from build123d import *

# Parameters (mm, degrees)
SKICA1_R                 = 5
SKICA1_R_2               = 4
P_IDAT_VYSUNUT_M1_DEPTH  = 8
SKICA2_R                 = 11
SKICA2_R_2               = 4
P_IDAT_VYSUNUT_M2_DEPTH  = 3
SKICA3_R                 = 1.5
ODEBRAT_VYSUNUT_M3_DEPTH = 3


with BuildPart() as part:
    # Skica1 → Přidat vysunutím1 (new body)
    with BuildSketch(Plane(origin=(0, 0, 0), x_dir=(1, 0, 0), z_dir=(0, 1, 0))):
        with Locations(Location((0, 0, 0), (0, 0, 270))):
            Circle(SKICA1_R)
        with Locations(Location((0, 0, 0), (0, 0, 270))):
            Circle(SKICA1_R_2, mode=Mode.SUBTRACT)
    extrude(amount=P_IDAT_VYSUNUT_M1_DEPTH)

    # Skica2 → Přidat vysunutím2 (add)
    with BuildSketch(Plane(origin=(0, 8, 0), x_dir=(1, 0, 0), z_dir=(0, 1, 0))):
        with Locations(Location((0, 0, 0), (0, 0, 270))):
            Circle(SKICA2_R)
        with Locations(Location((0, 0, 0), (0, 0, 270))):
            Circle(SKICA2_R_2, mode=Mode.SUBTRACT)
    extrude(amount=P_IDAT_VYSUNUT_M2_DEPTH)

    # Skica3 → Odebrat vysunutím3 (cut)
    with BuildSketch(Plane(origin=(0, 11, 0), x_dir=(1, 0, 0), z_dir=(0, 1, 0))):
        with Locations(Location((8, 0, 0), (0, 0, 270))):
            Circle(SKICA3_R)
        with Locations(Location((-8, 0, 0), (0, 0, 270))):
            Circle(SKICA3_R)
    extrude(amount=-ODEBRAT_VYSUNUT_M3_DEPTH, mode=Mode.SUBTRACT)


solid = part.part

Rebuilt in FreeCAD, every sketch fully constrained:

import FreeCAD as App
import Part
import Sketcher
Q = App.Units.Quantity

doc = App.newDocument("Part")
body = doc.addObject("PartDesign::Body", "Body")

sketch1 = doc.addObject("Sketcher::SketchObject", "Sketch")
body.addObject(sketch1)
sketch1.AttachmentSupport = (doc.XZ_Plane, [""])
sketch1.MapMode = "FlatFace"
sketch1.addGeometry(Part.Circle(App.Vector(0, 0, 0), App.Vector(0, 0, 1), 5), False)
sketch1.addGeometry(Part.Circle(App.Vector(0, 0, 0), App.Vector(0, 0, 1), 4), False)
sketch1.addConstraint(Sketcher.Constraint("Coincident", 0, 3, -1, 1))
sketch1.addConstraint(Sketcher.Constraint("Coincident", 1, 3, -1, 1))
sketch1.addConstraint(Sketcher.Constraint("Diameter", 0, Q("10 mm")))
sketch1.addConstraint(Sketcher.Constraint("Diameter", 1, Q("8 mm")))
pad1 = doc.addObject("PartDesign::Pad", "Pad")
body.addObject(pad1)
pad1.Profile = sketch1
pad1.Length = 8
pad1.Reversed = True

sketch2 = doc.addObject("Sketcher::SketchObject", "Sketch001")
body.addObject(sketch2)
sketch2.AttachmentSupport = (doc.XZ_Plane, [""])
sketch2.MapMode = "FlatFace"
sketch2.AttachmentOffset = App.Placement(App.Vector(0, 0, -8), App.Rotation())
sketch2.addGeometry(Part.Circle(App.Vector(0, 0, 0), App.Vector(0, 0, 1), 11), False)
sketch2.addGeometry(Part.Circle(App.Vector(0, 0, 0), App.Vector(0, 0, 1), 4), False)
sketch2.addConstraint(Sketcher.Constraint("Coincident", 0, 3, -1, 1))
sketch2.addConstraint(Sketcher.Constraint("Coincident", 1, 3, -1, 1))
sketch2.addConstraint(Sketcher.Constraint("Diameter", 0, Q("22 mm")))
sketch2.addConstraint(Sketcher.Constraint("Diameter", 1, Q("8 mm")))
pad2 = doc.addObject("PartDesign::Pad", "Pad001")
body.addObject(pad2)
pad2.Profile = sketch2
pad2.Length = 3
pad2.Reversed = True

sketch3 = doc.addObject("Sketcher::SketchObject", "Sketch002")
body.addObject(sketch3)
sketch3.AttachmentSupport = (doc.XZ_Plane, [""])
sketch3.MapMode = "FlatFace"
sketch3.AttachmentOffset = App.Placement(App.Vector(0, 0, -11), App.Rotation())
sketch3.addGeometry(Part.Circle(App.Vector(8, 0, 0), App.Vector(0, 0, 1), 1.5), False)
sketch3.addGeometry(Part.Circle(App.Vector(-8, 0, 0), App.Vector(0, 0, 1), 1.5), False)
sketch3.addConstraint(Sketcher.Constraint("Equal", 0, 1))
sketch3.addConstraint(Sketcher.Constraint("Symmetric", 0, 3, 1, 3, -1, 1))
sketch3.addConstraint(Sketcher.Constraint("PointOnObject", 0, 3, -1))
sketch3.addConstraint(Sketcher.Constraint("Diameter", 0, Q("3 mm")))
sketch3.addConstraint(Sketcher.Constraint("DistanceX", -1, 1, 0, 3, Q("8 mm")))
pocket1 = doc.addObject("PartDesign::Pocket", "Pocket")
body.addObject(pocket1)
pocket1.Profile = sketch3
pocket1.Length = 3
pocket1.Reversed = True

doc.recompute()
